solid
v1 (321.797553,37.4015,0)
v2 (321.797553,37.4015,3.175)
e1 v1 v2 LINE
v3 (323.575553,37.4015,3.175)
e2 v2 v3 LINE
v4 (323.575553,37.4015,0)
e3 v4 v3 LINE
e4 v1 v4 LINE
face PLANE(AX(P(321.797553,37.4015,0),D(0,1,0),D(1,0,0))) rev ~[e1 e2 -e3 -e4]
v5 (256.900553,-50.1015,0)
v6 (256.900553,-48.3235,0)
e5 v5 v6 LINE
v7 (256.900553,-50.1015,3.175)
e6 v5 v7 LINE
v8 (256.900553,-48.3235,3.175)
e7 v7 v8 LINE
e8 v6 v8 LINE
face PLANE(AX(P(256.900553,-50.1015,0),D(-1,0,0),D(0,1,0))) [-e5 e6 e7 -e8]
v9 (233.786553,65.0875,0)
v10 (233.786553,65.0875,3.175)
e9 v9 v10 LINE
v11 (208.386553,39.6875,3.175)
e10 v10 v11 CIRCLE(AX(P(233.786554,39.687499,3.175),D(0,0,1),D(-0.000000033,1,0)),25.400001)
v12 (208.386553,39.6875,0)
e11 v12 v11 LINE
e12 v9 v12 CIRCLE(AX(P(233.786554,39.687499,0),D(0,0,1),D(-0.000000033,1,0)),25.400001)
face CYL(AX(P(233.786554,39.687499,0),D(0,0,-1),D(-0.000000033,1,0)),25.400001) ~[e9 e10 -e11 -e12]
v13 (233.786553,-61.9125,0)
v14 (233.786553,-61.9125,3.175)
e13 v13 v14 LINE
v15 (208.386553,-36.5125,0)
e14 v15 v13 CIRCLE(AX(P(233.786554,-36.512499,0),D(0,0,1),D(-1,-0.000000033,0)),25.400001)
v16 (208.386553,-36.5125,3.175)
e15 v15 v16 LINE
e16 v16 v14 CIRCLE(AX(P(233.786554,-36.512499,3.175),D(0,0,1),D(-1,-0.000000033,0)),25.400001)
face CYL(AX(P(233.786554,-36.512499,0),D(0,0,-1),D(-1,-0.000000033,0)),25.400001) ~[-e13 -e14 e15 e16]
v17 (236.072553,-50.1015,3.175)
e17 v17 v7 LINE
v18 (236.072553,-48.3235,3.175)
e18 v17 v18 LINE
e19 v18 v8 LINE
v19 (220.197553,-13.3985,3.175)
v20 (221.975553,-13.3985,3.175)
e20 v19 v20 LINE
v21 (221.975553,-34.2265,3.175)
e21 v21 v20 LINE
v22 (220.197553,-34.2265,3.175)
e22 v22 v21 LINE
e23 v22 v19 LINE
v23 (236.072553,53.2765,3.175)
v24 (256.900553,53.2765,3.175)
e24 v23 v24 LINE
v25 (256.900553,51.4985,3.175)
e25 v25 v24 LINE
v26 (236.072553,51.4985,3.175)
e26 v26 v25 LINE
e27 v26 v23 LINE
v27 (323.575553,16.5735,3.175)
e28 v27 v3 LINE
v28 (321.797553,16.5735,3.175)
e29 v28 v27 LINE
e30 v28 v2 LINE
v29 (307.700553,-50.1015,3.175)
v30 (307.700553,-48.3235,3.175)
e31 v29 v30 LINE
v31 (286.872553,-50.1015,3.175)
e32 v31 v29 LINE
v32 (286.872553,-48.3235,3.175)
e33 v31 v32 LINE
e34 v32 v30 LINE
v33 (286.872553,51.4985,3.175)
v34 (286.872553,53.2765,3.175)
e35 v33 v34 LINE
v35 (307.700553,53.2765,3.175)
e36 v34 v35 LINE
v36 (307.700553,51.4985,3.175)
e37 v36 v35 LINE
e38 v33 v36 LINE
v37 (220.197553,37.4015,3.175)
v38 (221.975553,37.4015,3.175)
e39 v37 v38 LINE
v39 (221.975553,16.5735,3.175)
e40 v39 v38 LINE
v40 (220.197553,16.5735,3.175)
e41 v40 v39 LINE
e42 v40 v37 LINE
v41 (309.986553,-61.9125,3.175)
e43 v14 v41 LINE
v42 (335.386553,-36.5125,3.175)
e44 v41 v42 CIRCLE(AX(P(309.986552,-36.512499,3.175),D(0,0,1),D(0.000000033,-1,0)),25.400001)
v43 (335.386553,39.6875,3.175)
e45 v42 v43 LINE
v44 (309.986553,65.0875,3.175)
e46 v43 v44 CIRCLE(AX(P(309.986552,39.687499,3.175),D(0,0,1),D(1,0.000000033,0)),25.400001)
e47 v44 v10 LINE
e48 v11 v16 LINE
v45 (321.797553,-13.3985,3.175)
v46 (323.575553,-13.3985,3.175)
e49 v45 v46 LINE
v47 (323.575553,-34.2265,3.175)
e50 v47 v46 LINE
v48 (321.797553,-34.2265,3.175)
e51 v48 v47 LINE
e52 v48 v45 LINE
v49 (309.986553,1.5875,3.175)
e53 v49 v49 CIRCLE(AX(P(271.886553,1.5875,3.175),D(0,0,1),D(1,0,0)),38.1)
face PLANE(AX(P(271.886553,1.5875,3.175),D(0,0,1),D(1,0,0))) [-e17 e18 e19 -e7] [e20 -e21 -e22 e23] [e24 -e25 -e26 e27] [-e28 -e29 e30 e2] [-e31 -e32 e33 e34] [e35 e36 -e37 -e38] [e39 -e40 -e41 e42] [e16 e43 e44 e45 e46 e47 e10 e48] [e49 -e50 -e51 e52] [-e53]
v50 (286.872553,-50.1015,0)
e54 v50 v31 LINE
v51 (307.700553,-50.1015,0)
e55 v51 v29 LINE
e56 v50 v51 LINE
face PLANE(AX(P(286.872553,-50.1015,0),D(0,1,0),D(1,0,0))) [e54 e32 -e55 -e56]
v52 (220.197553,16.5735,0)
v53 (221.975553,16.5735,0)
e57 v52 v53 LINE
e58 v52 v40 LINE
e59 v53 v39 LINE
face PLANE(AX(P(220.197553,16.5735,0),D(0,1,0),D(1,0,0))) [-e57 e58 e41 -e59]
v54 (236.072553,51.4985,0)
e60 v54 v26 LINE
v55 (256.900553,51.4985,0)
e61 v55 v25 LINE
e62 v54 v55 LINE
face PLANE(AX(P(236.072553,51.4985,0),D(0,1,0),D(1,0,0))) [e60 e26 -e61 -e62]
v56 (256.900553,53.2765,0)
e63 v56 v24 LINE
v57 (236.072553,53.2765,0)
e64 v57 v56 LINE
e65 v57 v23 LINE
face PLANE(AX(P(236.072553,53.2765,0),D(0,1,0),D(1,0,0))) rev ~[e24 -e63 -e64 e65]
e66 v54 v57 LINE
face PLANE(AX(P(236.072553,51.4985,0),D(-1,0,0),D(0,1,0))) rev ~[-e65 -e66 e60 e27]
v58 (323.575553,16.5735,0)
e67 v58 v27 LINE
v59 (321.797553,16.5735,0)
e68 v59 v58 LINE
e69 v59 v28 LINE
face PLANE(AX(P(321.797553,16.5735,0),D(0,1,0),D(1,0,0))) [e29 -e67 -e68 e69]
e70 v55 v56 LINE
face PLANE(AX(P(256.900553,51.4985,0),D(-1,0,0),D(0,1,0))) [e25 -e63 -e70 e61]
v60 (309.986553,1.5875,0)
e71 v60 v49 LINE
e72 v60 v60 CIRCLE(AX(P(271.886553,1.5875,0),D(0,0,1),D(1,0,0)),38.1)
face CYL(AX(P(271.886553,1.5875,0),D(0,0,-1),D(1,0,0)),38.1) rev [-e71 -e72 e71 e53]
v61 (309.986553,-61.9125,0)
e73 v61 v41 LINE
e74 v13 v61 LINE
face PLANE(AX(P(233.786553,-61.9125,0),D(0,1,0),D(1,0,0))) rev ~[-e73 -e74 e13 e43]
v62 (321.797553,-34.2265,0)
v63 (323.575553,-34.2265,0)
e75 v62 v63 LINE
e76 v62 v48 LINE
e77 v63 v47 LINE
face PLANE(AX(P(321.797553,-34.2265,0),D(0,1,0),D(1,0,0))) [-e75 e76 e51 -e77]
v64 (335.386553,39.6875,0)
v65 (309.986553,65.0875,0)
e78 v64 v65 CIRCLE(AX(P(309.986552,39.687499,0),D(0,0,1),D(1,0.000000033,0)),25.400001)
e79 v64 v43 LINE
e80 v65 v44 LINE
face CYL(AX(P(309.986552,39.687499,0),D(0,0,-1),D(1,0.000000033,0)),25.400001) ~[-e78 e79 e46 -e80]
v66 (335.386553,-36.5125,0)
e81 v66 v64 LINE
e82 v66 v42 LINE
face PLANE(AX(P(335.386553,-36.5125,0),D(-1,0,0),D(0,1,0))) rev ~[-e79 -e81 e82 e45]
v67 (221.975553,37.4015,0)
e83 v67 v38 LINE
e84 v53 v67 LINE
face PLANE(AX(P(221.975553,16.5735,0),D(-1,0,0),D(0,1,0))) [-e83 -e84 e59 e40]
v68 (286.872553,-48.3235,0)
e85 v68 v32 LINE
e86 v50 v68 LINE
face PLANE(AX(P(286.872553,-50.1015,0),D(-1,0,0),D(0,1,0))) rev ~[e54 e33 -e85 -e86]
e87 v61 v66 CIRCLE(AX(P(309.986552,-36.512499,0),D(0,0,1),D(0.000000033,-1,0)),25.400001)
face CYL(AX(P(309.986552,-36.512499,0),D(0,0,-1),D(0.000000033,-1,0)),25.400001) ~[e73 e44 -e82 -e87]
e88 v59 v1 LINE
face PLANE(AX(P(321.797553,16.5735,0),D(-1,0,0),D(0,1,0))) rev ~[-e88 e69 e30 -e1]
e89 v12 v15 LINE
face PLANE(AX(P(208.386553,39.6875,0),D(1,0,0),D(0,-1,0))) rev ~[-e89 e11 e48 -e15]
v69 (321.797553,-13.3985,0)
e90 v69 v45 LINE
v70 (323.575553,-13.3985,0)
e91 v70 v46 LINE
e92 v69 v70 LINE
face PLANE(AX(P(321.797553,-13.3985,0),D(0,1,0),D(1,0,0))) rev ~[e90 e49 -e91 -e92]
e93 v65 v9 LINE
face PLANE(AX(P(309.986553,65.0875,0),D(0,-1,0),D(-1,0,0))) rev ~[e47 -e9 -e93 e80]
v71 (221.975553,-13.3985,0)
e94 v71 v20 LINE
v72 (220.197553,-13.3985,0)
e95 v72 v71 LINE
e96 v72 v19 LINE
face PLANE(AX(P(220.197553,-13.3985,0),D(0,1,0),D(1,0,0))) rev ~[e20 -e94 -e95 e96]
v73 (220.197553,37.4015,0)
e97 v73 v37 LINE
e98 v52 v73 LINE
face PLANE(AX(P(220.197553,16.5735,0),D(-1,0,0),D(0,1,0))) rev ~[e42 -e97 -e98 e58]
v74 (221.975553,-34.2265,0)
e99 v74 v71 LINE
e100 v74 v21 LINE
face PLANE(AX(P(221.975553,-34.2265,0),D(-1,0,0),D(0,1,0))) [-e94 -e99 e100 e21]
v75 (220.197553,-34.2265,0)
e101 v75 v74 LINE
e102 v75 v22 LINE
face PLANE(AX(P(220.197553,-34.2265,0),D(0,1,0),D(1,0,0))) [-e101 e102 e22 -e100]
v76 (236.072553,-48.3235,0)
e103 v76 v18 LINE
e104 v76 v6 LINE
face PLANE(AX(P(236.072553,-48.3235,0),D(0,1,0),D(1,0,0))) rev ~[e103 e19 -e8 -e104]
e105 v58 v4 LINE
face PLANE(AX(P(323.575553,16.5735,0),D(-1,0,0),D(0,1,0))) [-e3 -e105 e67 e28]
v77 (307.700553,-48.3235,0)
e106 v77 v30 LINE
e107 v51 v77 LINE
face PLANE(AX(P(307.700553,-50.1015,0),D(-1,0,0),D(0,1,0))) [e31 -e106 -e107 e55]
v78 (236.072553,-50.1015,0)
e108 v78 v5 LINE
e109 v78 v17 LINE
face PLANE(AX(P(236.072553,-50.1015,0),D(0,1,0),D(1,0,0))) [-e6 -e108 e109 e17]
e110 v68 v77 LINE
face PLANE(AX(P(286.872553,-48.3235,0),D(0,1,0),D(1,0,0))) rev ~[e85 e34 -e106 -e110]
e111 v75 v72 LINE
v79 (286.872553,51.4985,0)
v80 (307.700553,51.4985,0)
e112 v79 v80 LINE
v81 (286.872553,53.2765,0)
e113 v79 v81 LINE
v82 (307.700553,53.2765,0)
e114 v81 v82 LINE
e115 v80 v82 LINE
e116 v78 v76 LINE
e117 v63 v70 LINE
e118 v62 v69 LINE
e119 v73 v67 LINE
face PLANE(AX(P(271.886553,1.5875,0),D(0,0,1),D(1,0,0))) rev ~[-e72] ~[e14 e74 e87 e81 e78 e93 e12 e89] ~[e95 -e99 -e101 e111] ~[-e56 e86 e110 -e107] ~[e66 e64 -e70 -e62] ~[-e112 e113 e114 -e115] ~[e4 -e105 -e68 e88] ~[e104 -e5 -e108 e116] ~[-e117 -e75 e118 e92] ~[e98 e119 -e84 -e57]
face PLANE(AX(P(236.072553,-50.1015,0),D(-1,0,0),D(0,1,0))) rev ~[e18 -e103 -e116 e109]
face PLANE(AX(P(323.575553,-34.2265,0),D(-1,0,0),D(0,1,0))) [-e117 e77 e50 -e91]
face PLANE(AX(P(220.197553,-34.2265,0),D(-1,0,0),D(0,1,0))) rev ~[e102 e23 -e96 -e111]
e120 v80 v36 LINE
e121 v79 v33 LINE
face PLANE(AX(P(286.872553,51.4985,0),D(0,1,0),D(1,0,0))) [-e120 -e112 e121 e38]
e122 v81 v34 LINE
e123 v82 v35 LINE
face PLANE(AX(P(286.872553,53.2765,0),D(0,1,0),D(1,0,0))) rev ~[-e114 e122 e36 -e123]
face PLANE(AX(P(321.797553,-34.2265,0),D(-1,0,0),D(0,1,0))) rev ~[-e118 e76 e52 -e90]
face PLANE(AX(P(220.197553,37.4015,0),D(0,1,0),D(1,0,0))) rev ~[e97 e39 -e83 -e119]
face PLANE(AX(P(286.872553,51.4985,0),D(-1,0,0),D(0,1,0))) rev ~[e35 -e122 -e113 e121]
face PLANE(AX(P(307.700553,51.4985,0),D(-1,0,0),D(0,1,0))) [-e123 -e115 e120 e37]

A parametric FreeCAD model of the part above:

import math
import FreeCAD as App
import Part
import Sketcher
Q = App.Units.Quantity


def add_polygon(sketch, points):
    """Adds a closed chain of lines whose ends are joined by coincident constraints."""
    first, n = sketch.GeometryCount, len(points)
    for a, b in zip(points, points[1:] + points[:1]):
        sketch.addGeometry(Part.LineSegment(App.Vector(*a, 0), App.Vector(*b, 0)), False)
    for i in range(n):
        sketch.addConstraint(Sketcher.Constraint("Coincident", first + i, 2, first + (i + 1) % n, 1))

doc = App.newDocument("Part")
params = doc.addObject("Spreadsheet::Sheet", "Params")
for row, (alias, value) in enumerate([
    ("sketch1_diameter", "3 in"),
    ("sketch1_radius", "1 in"),
    ("sketch1_width", "3 in"),
    ("sketch1_width2", "0.82 in"),
    ("sketch1_width3", "0.07 in"),
    ("pad1_length", "0.125 in"),
], start=1):
    params.set(f"A{row}", alias)
    params.set(f"B{row}", "=" + value)
    params.setAlias(f"B{row}", alias)

body = doc.addObject("PartDesign::Body", "Body")

sketch1 = doc.addObject("Sketcher::SketchObject", "Sketch")
body.addObject(sketch1)
sketch1.AttachmentSupport = (doc.XY_Plane, [""])
sketch1.MapMode = "FlatFace"
sketch1.addGeometry(Part.ArcOfCircle(Part.Circle(App.Vector(233.8, -36.5, 0), App.Vector(0, 0, 1), 25.4), math.radians(-180), math.radians(-90)), False)
sketch1.addGeometry(Part.LineSegment(App.Vector(233.8, -61.9, 0), App.Vector(310, -61.9, 0)), False)
sketch1.addGeometry(Part.ArcOfCircle(Part.Circle(App.Vector(310, -36.5, 0), App.Vector(0, 0, 1), 25.4), math.radians(-90), math.radians(0)), False)
sketch1.addGeometry(Part.LineSegment(App.Vector(335.4, -36.5, 0), App.Vector(335.4, 39.7, 0)), False)
sketch1.addGeometry(Part.ArcOfCircle(Part.Circle(App.Vector(310, 39.7, 0), App.Vector(0, 0, 1), 25.4), math.radians(0), math.radians(90)), False)
sketch1.addGeometry(Part.LineSegment(App.Vector(310, 65.1, 0), App.Vector(233.8, 65.1, 0)), False)
sketch1.addGeometry(Part.ArcOfCircle(Part.Circle(App.Vector(233.8, 39.7, 0), App.Vector(0, 0, 1), 25.4), math.radians(90), math.radians(180)), False)
sketch1.addGeometry(Part.LineSegment(App.Vector(208.4, 39.7, 0), App.Vector(208.4, -36.5, 0)), False)
add_polygon(sketch1, [(256.9, -50.1), (236.1, -50.1), (236.1, -48.3), (256.9, -48.3)])
add_polygon(sketch1, [(222, -34.2), (220.2, -34.2), (220.2, -13.4), (222, -13.4)])
sketch1.addGeometry(Part.Circle(App.Vector(271.9, 1.6, 0), App.Vector(0, 0, 1), 38.1), False)
add_polygon(sketch1, [(307.7, -50.1), (286.9, -50.1), (286.9, -48.3), (307.7, -48.3)])
add_polygon(sketch1, [(323.6, -34.2), (321.8, -34.2), (321.8, -13.4), (323.6, -13.4)])
add_polygon(sketch1, [(222, 16.6), (220.2, 16.6), (220.2, 37.4), (222, 37.4)])
add_polygon(sketch1, [(256.9, 51.5), (236.1, 51.5), (236.1, 53.3), (256.9, 53.3)])
add_polygon(sketch1, [(323.6, 16.6), (321.8, 16.6), (321.8, 37.4), (323.6, 37.4)])
add_polygon(sketch1, [(307.7, 51.5), (286.9, 51.5), (286.9, 53.3), (307.7, 53.3)])
sketch1.addConstraint([
    Sketcher.Constraint("Tangent", 0, 2, 1, 1),
    Sketcher.Constraint("Tangent", 1, 2, 2, 1),
    Sketcher.Constraint("Tangent", 2, 2, 3, 1),
    Sketcher.Constraint("Tangent", 3, 2, 4, 1),
    Sketcher.Constraint("Tangent", 4, 2, 5, 1),
    Sketcher.Constraint("Tangent", 5, 2, 6, 1),
    Sketcher.Constraint("Tangent", 6, 2, 7, 1),
    Sketcher.Constraint("Tangent", 7, 2, 0, 1),
    Sketcher.Constraint("Horizontal", 1),
    Sketcher.Constraint("Vertical", 3),
    Sketcher.Constraint("Horizontal", 5),
    Sketcher.Constraint("Vertical", 7),
    Sketcher.Constraint("Horizontal", 8),
    Sketcher.Constraint("Vertical", 9),
    Sketcher.Constraint("Horizontal", 10),
    Sketcher.Constraint("Vertical", 11),
    Sketcher.Constraint("Horizontal", 12),
    Sketcher.Constraint("Vertical", 13),
    Sketcher.Constraint("Horizontal", 14),
    Sketcher.Constraint("Vertical", 15),
    Sketcher.Constraint("Horizontal", 17),
    Sketcher.Constraint("Vertical", 18),
    Sketcher.Constraint("Horizontal", 19),
    Sketcher.Constraint("Vertical", 20),
    Sketcher.Constraint("Horizontal", 21),
    Sketcher.Constraint("Vertical", 22),
    Sketcher.Constraint("Horizontal", 23),
    Sketcher.Constraint("Vertical", 24),
    Sketcher.Constraint("Horizontal", 25),
    Sketcher.Constraint("Vertical", 26),
    Sketcher.Constraint("Horizontal", 27),
    Sketcher.Constraint("Vertical", 28),
    Sketcher.Constraint("Horizontal", 29),
    Sketcher.Constraint("Vertical", 30),
    Sketcher.Constraint("Horizontal", 31),
    Sketcher.Constraint("Vertical", 32),
    Sketcher.Constraint("Horizontal", 33),
    Sketcher.Constraint("Vertical", 34),
    Sketcher.Constraint("Horizontal", 35),
    Sketcher.Constraint("Vertical", 36),
    Sketcher.Constraint("Horizontal", 37),
    Sketcher.Constraint("Vertical", 38),
    Sketcher.Constraint("Horizontal", 39),
    Sketcher.Constraint("Vertical", 40),
    Sketcher.Constraint("Equal", 0, 2),
    Sketcher.Constraint("Equal", 2, 4),
    Sketcher.Constraint("Equal", 4, 6),
    Sketcher.Constraint("Horizontal", 11, 2, 17, 2),
    Sketcher.Constraint("Horizontal", 10, 2, 18, 2),
    Sketcher.Constraint("Horizontal", 15, 2, 21, 2),
    Sketcher.Constraint("Horizontal", 14, 2, 22, 2),
    Sketcher.Constraint("Horizontal", 28, 2, 33, 2),
    Sketcher.Constraint("Horizontal", 27, 2, 34, 2),
    Sketcher.Constraint("Horizontal", 32, 2, 37, 2),
    Sketcher.Constraint("Horizontal", 31, 2, 38, 2),
    Sketcher.Constraint("Vertical", 13, 2, 25, 2),
    Sketcher.Constraint("Vertical", 15, 2, 27, 2),
    Sketcher.Constraint("Vertical", 9, 2, 29, 2),
    Sketcher.Constraint("Vertical", 11, 2, 31, 2),
    Sketcher.Constraint("Vertical", 22, 2, 33, 2),
    Sketcher.Constraint("Vertical", 24, 2, 35, 2),
    Sketcher.Constraint("Vertical", 18, 2, 37, 2),
    Sketcher.Constraint("Vertical", 20, 2, 39, 2),
    Sketcher.Constraint("Equal", 10, 17),
    Sketcher.Constraint("Equal", 14, 21),
    Sketcher.Constraint("Equal", 5, 3),
    Sketcher.Constraint("Equal", 35, 9),
    Sketcher.Constraint("Equal", 39, 13),
    Sketcher.Constraint("Equal", 24, 26),
    Sketcher.Constraint("Equal", 20, 30),
    Sketcher.Constraint("Diameter", 16, Q("3 in")),
    Sketcher.Constraint("Radius", 0, Q("1 in")),
    Sketcher.Constraint("DistanceX", 1, 1, 1, 2, Q("3 in")),
    Sketcher.Constraint("DistanceY", 13, 2, 26, 2, Q("2 in")),
    Sketcher.Constraint("DistanceX", 8, 2, 8, 1, Q("0.82 in")),
    Sketcher.Constraint("DistanceX", 12, 2, 12, 1, Q("0.07 in")),
    Sketcher.Constraint("DistanceX", 0, 3, 16, 3, Q("1.5 in")),
    Sketcher.Constraint("DistanceY", 0, 3, 16, 3, Q("1.5 in")),
    Sketcher.Constraint("DistanceX", 0, 2, 8, 2, Q("0.09 in")),
    Sketcher.Constraint("DistanceY", 7, 2, 12, 2, Q("0.09 in")),
    Sketcher.Constraint("DistanceX", 17, 2, 1, 2, Q("0.91 in")),
    Sketcher.Constraint("DistanceY", 0, 3, -1, 1, Q("1.4375 in")),
    Sketcher.Constraint("DistanceY", 0, 2, 8, 2, Q("0.465 in")),
    Sketcher.Constraint("DistanceX", 7, 2, 12, 2, Q("0.465 in")),
    Sketcher.Constraint("DistanceX", 2, 3, 21, 2, Q("0.465 in")),
    Sketcher.Constraint("DistanceY", 6, 3, 29, 2, Q("0.465 in")),
    Sketcher.Constraint("DistanceX", -1, 1, 0, 3, 233.786554),
])
sketch1.setExpression("Constraints[102]", "Params.sketch1_diameter")
sketch1.setExpression("Constraints[103]", "Params.sketch1_radius")
sketch1.setExpression("Constraints[104]", "Params.sketch1_width")
sketch1.setExpression("Constraints[106]", "Params.sketch1_width2")
sketch1.setExpression("Constraints[107]", "Params.sketch1_width3")
pad1 = doc.addObject("PartDesign::Pad", "Pad")
body.addObject(pad1)
pad1.Profile = sketch1
pad1.setExpression("Length", "Params.pad1_length")

doc.recompute()
